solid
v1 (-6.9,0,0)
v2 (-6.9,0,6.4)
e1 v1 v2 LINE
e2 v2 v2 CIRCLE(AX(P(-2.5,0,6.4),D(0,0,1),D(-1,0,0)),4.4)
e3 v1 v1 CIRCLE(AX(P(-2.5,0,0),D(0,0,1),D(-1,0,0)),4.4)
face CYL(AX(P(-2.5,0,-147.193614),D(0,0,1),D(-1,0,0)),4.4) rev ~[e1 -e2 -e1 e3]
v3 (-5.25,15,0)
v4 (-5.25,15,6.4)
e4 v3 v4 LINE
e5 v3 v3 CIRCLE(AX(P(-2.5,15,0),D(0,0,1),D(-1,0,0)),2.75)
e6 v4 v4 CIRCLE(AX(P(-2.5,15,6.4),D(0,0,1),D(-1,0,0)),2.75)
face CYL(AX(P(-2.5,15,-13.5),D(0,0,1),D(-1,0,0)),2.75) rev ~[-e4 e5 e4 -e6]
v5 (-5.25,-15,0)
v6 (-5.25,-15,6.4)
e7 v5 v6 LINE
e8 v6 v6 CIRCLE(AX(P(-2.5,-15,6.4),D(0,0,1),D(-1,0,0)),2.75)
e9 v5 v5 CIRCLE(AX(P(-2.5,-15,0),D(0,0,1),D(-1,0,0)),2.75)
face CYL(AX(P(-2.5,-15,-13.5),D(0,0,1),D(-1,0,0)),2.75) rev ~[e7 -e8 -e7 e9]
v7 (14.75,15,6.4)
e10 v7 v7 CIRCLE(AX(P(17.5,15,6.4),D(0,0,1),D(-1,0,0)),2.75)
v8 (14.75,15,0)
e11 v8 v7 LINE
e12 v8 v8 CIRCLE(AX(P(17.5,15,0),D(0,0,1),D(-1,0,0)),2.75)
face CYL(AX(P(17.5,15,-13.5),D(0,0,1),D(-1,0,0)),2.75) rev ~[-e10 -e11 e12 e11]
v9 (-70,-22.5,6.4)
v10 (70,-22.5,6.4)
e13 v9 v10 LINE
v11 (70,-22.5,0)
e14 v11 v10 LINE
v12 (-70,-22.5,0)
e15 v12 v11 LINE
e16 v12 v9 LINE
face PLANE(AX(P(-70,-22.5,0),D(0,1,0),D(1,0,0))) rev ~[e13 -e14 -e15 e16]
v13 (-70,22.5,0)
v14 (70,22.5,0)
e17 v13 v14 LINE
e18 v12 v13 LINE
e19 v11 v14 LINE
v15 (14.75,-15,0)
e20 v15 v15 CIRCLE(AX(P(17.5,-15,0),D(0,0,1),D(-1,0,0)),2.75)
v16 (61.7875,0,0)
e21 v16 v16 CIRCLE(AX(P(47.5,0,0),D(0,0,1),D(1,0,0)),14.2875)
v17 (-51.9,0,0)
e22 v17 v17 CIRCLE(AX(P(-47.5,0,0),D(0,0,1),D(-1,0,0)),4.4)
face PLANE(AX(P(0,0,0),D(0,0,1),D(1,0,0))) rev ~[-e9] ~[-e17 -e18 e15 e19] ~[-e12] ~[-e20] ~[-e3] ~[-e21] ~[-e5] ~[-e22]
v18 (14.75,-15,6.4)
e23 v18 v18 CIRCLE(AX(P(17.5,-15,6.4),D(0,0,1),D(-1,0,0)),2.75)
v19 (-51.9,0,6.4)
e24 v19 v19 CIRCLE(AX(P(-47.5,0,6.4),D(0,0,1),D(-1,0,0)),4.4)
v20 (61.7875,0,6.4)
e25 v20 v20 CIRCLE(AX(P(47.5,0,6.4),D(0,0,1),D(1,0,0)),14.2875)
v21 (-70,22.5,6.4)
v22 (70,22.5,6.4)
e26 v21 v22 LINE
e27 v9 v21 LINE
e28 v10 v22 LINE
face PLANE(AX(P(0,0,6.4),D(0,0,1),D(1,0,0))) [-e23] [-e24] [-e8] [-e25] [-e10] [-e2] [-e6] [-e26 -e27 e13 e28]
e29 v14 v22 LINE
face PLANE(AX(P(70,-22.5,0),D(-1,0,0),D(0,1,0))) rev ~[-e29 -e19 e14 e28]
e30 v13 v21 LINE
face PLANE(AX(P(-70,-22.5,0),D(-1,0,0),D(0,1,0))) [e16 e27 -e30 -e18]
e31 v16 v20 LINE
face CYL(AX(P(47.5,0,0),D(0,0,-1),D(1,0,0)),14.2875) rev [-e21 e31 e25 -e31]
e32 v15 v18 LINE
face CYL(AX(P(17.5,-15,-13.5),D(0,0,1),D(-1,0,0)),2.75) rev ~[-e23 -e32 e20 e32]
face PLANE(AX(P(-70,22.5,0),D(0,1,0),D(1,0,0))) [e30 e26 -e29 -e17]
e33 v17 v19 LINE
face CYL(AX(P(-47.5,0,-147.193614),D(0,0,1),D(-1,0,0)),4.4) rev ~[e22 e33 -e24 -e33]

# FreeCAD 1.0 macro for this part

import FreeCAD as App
import Part
import Sketcher


def add_polygon(sketch, points):
    """Adds a closed chain of lines whose ends are joined by coincident constraints."""
    first, n = sketch.GeometryCount, len(points)
    for a, b in zip(points, points[1:] + points[:1]):
        sketch.addGeometry(Part.LineSegment(App.Vector(*a, 0), App.Vector(*b, 0)), False)
    for i in range(n):
        sketch.addConstraint(Sketcher.Constraint("Coincident", first + i, 2, first + (i + 1) % n, 1))

doc = App.newDocument("Part")
body = doc.addObject("PartDesign::Body", "Body")

# Sketch on XY plane
sketch1 = body.newObject("Sketcher::SketchObject", "Sketch")
sketch1.AttachmentSupport = (doc.getObject("XY_Plane"), [""])
sketch1.MapMode = "FlatFace"
add_polygon(sketch1, [(-70, 22.5), (-70, -22.5), (70, -22.5), (70, 22.5)])  # lines 0-3
sketch1.addGeometry(Part.Circle(App.Vector(47.5, 0, 0), App.Vector(0, 0, 1), 14.2875), False)  # 4
sketch1.addConstraint(Sketcher.Constraint("Vertical", 0))
sketch1.addConstraint(Sketcher.Constraint("Horizontal", 1))
sketch1.addConstraint(Sketcher.Constraint("Vertical", 2))
sketch1.addConstraint(Sketcher.Constraint("Horizontal", 3))
sketch1.addConstraint(Sketcher.Constraint("Symmetric", 0, 2, 2, 2, -1, 1))
sketch1.addConstraint(Sketcher.Constraint("PointOnObject", 4, 3, -1))
sketch1.addConstraint(Sketcher.Constraint("DistanceX", 1, 1, 1, 2, 140.0))
sketch1.addConstraint(Sketcher.Constraint("DistanceY", 0, 2, 0, 1, 45.0))
sketch1.addConstraint(Sketcher.Constraint("Diameter", 4, 28.575))
sketch1.addConstraint(Sketcher.Constraint("DistanceX", -1, 1, 4, 3, 47.5))
pad1 = body.newObject("PartDesign::Pad", "Pad")
pad1.Profile = sketch1
pad1.Length = 6.4

# Sketch on XY plane
sketch2 = body.newObject("Sketcher::SketchObject", "Sketch001")
sketch2.AttachmentSupport = (doc.getObject("XY_Plane"), [""])
sketch2.MapMode = "FlatFace"
sketch2.addGeometry(Part.Circle(App.Vector(-47.5, 0, 0), App.Vector(0, 0, 1), 4.4), False)
sketch2.addGeometry(Part.Circle(App.Vector(-2.5, 0, 0), App.Vector(0, 0, 1), 4.4), False)
sketch2.addConstraint(Sketcher.Constraint("Equal", 0, 1))
sketch2.addConstraint(Sketcher.Constraint("PointOnObject", 0, 3, -1))
sketch2.addConstraint(Sketcher.Constraint("PointOnObject", 1, 3, -1))
sketch2.addConstraint(Sketcher.Constraint("Diameter", 0, 8.8))
sketch2.addConstraint(Sketcher.Constraint("DistanceX", 0, 3, 1, 3, 45.0))
sketch2.addConstraint(Sketcher.Constraint("DistanceX", 0, 3, -1, 1, 47.5))
doc.recompute()
hole = body.newObject("PartDesign::Hole", "Hole")
hole.Profile = sketch2
hole.ThreadType = "None"
hole.Diameter = 8.8
hole.DepthType = "ThroughAll"
hole.Reversed = True

# Sketch on XY plane
sketch3 = body.newObject("Sketcher::SketchObject", "Sketch002")
sketch3.AttachmentSupport = (doc.getObject("XY_Plane"), [""])
sketch3.MapMode = "FlatFace"
sketch3.addGeometry(Part.Circle(App.Vector(-2.5, 15, 0), App.Vector(0, 0, 1), 2.75), False)
sketch3.addGeometry(Part.Circle(App.Vector(17.5, 15, 0), App.Vector(0, 0, 1), 2.75), False)
sketch3.addGeometry(Part.Circle(App.Vector(17.5, -15, 0), App.Vector(0, 0, 1), 2.75), False)
sketch3.addGeometry(Part.Circle(App.Vector(-2.5, -15, 0), App.Vector(0, 0, 1), 2.75), False)
sketch3.addConstraint(Sketcher.Constraint("Equal", 0, 1))
sketch3.addConstraint(Sketcher.Constraint("Equal", 1, 2))
sketch3.addConstraint(Sketcher.Constraint("Equal", 2, 3))
sketch3.addConstraint(Sketcher.Constraint("Symmetric", 1, 3, 2, 3, -1))
sketch3.addConstraint(Sketcher.Constraint("Symmetric", 0, 3, 3, 3, -1))
sketch3.addConstraint(Sketcher.Constraint("Horizontal", 0, 3, 1, 3))
sketch3.addConstraint(Sketcher.Constraint("Diameter", 0, 5.5))
sketch3.addConstraint(Sketcher.Constraint("DistanceY", -1, 1, 0, 3, 15.0))
sketch3.addConstraint(Sketcher.Constraint("DistanceX", 0, 3, 1, 3, 20.0))
sketch3.addConstraint(Sketcher.Constraint("DistanceX", 0, 3, -1, 1, 2.5))
doc.recompute()
hole2 = body.newObject("PartDesign::Hole", "Hole001")
hole2.Profile = sketch3
hole2.ThreadType = "None"
hole2.Diameter = 5.5
hole2.DepthType = "Dimension"
hole2.Depth = 13.5
hole2.DrillPoint = "Angled"
hole2.DrillPointAngle = 118
hole2.Reversed = True

doc.recompute()
